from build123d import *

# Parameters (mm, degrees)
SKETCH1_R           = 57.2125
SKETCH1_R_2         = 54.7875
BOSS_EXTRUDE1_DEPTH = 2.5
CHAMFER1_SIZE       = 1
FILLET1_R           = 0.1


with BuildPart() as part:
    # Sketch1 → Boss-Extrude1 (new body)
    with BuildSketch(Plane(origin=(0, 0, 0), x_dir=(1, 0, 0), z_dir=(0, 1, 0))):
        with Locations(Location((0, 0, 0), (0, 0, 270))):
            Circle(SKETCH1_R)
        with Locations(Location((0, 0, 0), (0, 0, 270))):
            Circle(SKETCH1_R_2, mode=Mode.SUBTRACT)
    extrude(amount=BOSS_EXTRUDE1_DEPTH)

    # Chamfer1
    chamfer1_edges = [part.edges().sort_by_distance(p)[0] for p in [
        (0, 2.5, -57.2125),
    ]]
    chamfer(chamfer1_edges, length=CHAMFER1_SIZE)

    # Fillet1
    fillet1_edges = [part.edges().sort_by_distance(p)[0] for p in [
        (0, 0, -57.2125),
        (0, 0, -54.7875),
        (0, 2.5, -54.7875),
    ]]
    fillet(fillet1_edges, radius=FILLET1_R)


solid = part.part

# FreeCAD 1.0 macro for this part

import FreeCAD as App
import Part
import Sketcher
Q = App.Units.Quantity


def edges_at(feature, points):
    """Names of the edges that pass closest to the given points."""
    edges = feature.Shape.Edges
    near = lambda p: min(range(len(edges)), key=lambda i: edges[i].distToShape(Part.Vertex(*p))[0])
    return sorted({f"Edge{near(p) + 1}" for p in points})

doc = App.newDocument("Part")
body = doc.addObject("PartDesign::Body", "Body")

# Sketch on XZ plane
sketch1 = body.newObject("Sketcher::SketchObject", "Sketch")
sketch1.AttachmentSupport = (doc.getObject("XZ_Plane"), [""])
sketch1.MapMode = "FlatFace"
sketch1.addGeometry([
    Part.Circle(App.Vector(0, 0, 0), App.Vector(0, 0, 1), 57),
    Part.Circle(App.Vector(0, 0, 0), App.Vector(0, 0, 1), 55),
], False)
sketch1.addConstraint([
    Sketcher.Constraint("Coincident", 0, 3, -1, 1),
    Sketcher.Constraint("Coincident", 1, 3, -1, 1),
    Sketcher.Constraint("Diameter", 0, Q("114.425 mm")),
    Sketcher.Constraint("Diameter", 1, Q("109.575 mm")),
])
pad1 = body.newObject("PartDesign::Pad", "Pad")
pad1.Profile = sketch1
pad1.Length = 2.5
pad1.Reversed = True
doc.recompute()

chamfer = body.newObject("PartDesign::Chamfer", "Chamfer")
chamfer.Base = (pad1, edges_at(pad1, [(0, 2.5, -57.212)]))
chamfer.Size = 1
doc.recompute()

fillet = body.newObject("PartDesign::Fillet", "Fillet")
fillet.Base = (chamfer, edges_at(chamfer, [(0, 0, -57.212), (0, 0, -54.788), (0, 2.5, -54.788)]))
fillet.Radius = 0.1

doc.recompute()
